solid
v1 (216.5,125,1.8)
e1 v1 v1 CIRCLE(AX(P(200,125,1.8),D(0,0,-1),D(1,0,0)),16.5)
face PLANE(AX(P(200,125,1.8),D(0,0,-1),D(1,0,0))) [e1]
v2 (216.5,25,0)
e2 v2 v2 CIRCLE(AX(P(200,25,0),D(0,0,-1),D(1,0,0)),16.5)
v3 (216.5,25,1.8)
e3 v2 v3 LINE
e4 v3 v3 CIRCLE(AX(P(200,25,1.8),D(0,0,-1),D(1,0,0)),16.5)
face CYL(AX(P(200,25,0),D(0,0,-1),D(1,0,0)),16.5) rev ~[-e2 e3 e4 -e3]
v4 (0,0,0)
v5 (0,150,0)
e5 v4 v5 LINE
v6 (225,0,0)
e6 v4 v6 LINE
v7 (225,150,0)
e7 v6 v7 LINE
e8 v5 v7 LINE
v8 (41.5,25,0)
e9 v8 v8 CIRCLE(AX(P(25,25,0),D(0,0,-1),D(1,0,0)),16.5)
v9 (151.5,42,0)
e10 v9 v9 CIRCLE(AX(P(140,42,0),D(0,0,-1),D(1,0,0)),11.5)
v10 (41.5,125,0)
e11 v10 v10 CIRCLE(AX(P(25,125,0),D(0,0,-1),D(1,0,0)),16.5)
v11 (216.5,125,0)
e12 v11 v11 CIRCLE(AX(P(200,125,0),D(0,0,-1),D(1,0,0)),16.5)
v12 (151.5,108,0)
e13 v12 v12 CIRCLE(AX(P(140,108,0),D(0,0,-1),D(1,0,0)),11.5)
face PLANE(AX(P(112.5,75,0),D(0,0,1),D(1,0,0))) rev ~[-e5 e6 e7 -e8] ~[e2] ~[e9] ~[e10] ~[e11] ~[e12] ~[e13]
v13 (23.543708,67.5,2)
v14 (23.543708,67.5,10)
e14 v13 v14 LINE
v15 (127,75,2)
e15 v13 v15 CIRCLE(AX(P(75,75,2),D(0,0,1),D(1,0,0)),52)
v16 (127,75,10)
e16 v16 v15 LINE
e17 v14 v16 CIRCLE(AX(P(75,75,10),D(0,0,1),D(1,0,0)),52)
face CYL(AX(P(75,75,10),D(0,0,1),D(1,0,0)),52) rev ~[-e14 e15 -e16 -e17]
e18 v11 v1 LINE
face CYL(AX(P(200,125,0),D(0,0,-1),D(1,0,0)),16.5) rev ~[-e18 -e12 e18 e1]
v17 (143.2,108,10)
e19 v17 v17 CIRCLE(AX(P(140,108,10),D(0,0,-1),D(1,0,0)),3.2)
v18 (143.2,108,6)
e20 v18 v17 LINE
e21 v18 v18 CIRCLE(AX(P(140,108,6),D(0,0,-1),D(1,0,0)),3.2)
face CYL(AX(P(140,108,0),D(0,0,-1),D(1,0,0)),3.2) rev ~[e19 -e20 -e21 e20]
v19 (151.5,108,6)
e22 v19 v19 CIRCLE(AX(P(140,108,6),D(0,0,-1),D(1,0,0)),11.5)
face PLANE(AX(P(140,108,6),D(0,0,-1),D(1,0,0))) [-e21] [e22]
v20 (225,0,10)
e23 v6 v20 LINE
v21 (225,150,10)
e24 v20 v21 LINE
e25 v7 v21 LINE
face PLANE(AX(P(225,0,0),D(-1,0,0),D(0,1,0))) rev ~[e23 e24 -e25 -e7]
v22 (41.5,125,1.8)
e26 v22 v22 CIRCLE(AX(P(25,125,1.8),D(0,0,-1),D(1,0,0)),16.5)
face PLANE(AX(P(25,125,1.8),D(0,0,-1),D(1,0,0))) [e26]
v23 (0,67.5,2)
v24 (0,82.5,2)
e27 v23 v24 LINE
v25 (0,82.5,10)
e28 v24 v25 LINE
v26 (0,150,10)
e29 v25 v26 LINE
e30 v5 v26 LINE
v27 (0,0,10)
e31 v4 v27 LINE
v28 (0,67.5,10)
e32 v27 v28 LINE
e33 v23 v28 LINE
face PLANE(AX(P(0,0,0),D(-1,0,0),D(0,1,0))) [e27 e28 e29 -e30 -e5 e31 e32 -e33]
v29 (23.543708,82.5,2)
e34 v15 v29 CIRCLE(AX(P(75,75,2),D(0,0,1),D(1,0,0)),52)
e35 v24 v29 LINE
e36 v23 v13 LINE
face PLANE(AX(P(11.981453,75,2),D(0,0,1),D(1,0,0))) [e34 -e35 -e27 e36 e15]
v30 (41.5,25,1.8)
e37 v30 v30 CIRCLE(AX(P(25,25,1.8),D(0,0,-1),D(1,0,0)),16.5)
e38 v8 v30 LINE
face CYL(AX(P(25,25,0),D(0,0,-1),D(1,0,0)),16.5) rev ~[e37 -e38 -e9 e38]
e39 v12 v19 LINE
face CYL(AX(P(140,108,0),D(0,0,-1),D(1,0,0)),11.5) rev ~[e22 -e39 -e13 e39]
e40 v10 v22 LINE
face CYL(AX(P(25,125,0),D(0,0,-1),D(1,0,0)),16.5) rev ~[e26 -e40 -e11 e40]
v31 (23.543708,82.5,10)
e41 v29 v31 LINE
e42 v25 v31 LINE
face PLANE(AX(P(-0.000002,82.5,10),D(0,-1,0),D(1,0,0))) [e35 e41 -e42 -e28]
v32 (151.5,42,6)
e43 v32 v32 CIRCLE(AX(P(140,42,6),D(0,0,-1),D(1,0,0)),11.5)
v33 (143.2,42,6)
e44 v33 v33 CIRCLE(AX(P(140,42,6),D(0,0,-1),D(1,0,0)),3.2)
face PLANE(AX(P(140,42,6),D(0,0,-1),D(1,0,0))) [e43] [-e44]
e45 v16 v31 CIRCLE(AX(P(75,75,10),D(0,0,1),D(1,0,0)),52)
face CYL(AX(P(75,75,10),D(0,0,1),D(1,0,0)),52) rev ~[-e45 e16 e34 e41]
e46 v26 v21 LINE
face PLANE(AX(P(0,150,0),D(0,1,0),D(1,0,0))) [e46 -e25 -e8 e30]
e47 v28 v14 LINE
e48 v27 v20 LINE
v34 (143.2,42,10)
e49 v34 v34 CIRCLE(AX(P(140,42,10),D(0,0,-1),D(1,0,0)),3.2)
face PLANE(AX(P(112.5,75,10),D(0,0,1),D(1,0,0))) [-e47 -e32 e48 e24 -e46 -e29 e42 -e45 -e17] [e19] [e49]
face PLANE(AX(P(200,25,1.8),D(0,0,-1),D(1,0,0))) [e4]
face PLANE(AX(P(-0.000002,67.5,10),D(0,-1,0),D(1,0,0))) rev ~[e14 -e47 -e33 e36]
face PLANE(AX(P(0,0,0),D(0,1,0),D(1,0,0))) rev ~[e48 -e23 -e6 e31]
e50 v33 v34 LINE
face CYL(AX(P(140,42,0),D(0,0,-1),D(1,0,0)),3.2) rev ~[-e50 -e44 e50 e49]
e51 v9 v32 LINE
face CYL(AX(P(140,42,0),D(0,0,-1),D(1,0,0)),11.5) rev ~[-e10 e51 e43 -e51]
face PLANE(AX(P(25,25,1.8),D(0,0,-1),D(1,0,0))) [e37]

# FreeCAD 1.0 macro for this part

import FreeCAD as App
import Part
import Sketcher
from FreeCAD import Vector


def add_polygon(sketch, points):
    """Adds a closed chain of lines whose ends are joined by coincident constraints."""
    first, n = sketch.GeometryCount, len(points)
    for a, b in zip(points, points[1:] + points[:1]):
        sketch.addGeometry(Part.LineSegment(App.Vector(*a, 0), App.Vector(*b, 0)), False)
    for i in range(n):
        sketch.addConstraint(Sketcher.Constraint("Coincident", first + i, 2, first + (i + 1) % n, 1))

doc = App.newDocument("Part")
body = doc.addObject("PartDesign::Body", "Body")

# Sketch on XY plane
sketch1 = body.newObject("Sketcher::SketchObject", "Sketch")
sketch1.AttachmentSupport = (doc.getObject("XY_Plane"), [""])
sketch1.MapMode = "FlatFace"
add_polygon(sketch1, [(0, 150), (0, 0), (225, 0), (225, 150)])  # lines 0-3
sketch1.addConstraint([
    Sketcher.Constraint("Vertical", 0),
    Sketcher.Constraint("Horizontal", 1),
    Sketcher.Constraint("Vertical", 2),
    Sketcher.Constraint("Horizontal", 3),
    Sketcher.Constraint("Coincident", 0, 2, -1, 1),
    Sketcher.Constraint("DistanceX", 1, 1, 1, 2, 225.0),
    Sketcher.Constraint("DistanceY", 0, 2, 0, 1, 150.0),
])
pad1 = body.newObject("PartDesign::Pad", "Pad")
pad1.Profile = sketch1
pad1.Length = 10

# Sketch on XY plane
sketch2 = body.newObject("Sketcher::SketchObject", "Sketch001")
sketch2.AttachmentSupport = (doc.getObject("XY_Plane"), [""])
sketch2.MapMode = "FlatFace"
sketch2.addGeometry([
    Part.Circle(Vector(140, 42, 0), Vector(0, 0, 1), 11.5),
    Part.Circle(Vector(140, 108, 0), Vector(0, 0, 1), 11.5),
], False)
sketch2.addConstraint([
    Sketcher.Constraint("Equal", 0, 1),
    Sketcher.Constraint("Vertical", 0, 3, 1, 3),
    Sketcher.Constraint("Diameter", 0, 23.0),
    Sketcher.Constraint("DistanceX", -1, 1, 0, 3, 140.0),
    Sketcher.Constraint("DistanceY", -1, 1, 0, 3, 42.0),
    Sketcher.Constraint("DistanceY", -1, 1, 1, 3, 108.0),
])
pocket1 = body.newObject("PartDesign::Pocket", "Pocket")
pocket1.Profile = sketch2
pocket1.Length = 6
pocket1.Reversed = True

# Sketch on XY plane
sketch3 = body.newObject("Sketcher::SketchObject", "Sketch002")
sketch3.AttachmentSupport = (doc.getObject("XY_Plane"), [""])
sketch3.MapMode = "FlatFace"
sketch3.addGeometry([
    Part.Circle(Vector(140, 42, 0), Vector(0, 0, 1), 3.2),
    Part.Circle(Vector(140, 108, 0), Vector(0, 0, 1), 3.2),
], False)
sketch3.addConstraint([
    Sketcher.Constraint("Equal", 0, 1),
    Sketcher.Constraint("Vertical", 0, 3, 1, 3),
    Sketcher.Constraint("Diameter", 0, 6.4),
    Sketcher.Constraint("DistanceX", -1, 1, 0, 3, 140.0),
    Sketcher.Constraint("DistanceY", -1, 1, 0, 3, 42.0),
    Sketcher.Constraint("DistanceY", -1, 1, 1, 3, 108.0),
])
pocket2 = body.newObject("PartDesign::Pocket", "Pocket001")
pocket2.Profile = sketch3
pocket2.Length = 10
pocket2.Reversed = True

# Sketch on XY plane
sketch4 = body.newObject("Sketcher::SketchObject", "Sketch003")
sketch4.AttachmentSupport = (doc.getObject("XY_Plane"), [""])
sketch4.MapMode = "FlatFace"
sketch4.addGeometry([
    Part.Circle(Vector(25, 25, 0), Vector(0, 0, 1), 16.5),
    Part.Circle(Vector(25, 125, 0), Vector(0, 0, 1), 16.5),
    Part.Circle(Vector(200, 25, 0), Vector(0, 0, 1), 16.5),
    Part.Circle(Vector(200, 125, 0), Vector(0, 0, 1), 16.5),
], False)
sketch4.addConstraint([
    Sketcher.Constraint("Equal", 0, 1),
    Sketcher.Constraint("Equal", 1, 2),
    Sketcher.Constraint("Equal", 2, 3),
    Sketcher.Constraint("Horizontal", 0, 3, 2, 3),
    Sketcher.Constraint("Horizontal", 1, 3, 3, 3),
    Sketcher.Constraint("Vertical", 0, 3, 1, 3),
    Sketcher.Constraint("Vertical", 2, 3, 3, 3),
    Sketcher.Constraint("Diameter", 0, 33.0),
    Sketcher.Constraint("DistanceX", -1, 1, 0, 3, 25.0),
    Sketcher.Constraint("DistanceY", -1, 1, 0, 3, 25.0),
    Sketcher.Constraint("DistanceY", -1, 1, 1, 3, 125.0),
    Sketcher.Constraint("DistanceX", -1, 1, 2, 3, 200.0),
])
pocket3 = body.newObject("PartDesign::Pocket", "Pocket002")
pocket3.Profile = sketch4
pocket3.Length = 1.8
pocket3.Reversed = True

# Sketch on XY plane
sketch5 = body.newObject("Sketcher::SketchObject", "Sketch004")
sketch5.AttachmentSupport = (doc.getObject("XY_Plane"), [""])
sketch5.MapMode = "FlatFace"
sketch5.AttachmentOffset = App.Placement(Vector(0, 0, 10), App.Rotation())
sketch5.addGeometry(Part.Circle(Vector(75, 75, 0), Vector(0, 0, 1), 52), False)
sketch5.addConstraint([
    Sketcher.Constraint("Diameter", 0, 104.0),
    Sketcher.Constraint("DistanceX", -1, 1, 0, 3, 75.0),
    Sketcher.Constraint("DistanceY", -1, 1, 0, 3, 75.0),
])
pocket4 = body.newObject("PartDesign::Pocket", "Pocket003")
pocket4.Profile = sketch5
pocket4.Length = 8

# Sketch on XY plane
sketch6 = body.newObject("Sketcher::SketchObject", "Sketch005")
sketch6.AttachmentSupport = (doc.getObject("XY_Plane"), [""])
sketch6.MapMode = "FlatFace"
sketch6.AttachmentOffset = App.Placement(Vector(0, 0, 10), App.Rotation())
add_polygon(sketch6, [(-0.000002, 82.5), (-0.000002, 67.5), (23.962908, 67.5), (23.962908, 82.5)])  # lines 0-3
sketch6.addConstraint([
    Sketcher.Constraint("Vertical", 0),
    Sketcher.Constraint("Horizontal", 1),
    Sketcher.Constraint("Vertical", 2),
    Sketcher.Constraint("Horizontal", 3),
    Sketcher.Constraint("DistanceY", 0, 2, 0, 1, 15.0),
    Sketcher.Constraint("DistanceY", -1, 1, 0, 2, 67.5),
    Sketcher.Constraint("DistanceX", 1, 1, 1, 2, 23.96291),
    Sketcher.Constraint("DistanceX", -1, 1, 1, 2, 23.962908),
])
pocket5 = body.newObject("PartDesign::Pocket", "Pocket004")
pocket5.Profile = sketch6
pocket5.Length = 8

doc.recompute()
